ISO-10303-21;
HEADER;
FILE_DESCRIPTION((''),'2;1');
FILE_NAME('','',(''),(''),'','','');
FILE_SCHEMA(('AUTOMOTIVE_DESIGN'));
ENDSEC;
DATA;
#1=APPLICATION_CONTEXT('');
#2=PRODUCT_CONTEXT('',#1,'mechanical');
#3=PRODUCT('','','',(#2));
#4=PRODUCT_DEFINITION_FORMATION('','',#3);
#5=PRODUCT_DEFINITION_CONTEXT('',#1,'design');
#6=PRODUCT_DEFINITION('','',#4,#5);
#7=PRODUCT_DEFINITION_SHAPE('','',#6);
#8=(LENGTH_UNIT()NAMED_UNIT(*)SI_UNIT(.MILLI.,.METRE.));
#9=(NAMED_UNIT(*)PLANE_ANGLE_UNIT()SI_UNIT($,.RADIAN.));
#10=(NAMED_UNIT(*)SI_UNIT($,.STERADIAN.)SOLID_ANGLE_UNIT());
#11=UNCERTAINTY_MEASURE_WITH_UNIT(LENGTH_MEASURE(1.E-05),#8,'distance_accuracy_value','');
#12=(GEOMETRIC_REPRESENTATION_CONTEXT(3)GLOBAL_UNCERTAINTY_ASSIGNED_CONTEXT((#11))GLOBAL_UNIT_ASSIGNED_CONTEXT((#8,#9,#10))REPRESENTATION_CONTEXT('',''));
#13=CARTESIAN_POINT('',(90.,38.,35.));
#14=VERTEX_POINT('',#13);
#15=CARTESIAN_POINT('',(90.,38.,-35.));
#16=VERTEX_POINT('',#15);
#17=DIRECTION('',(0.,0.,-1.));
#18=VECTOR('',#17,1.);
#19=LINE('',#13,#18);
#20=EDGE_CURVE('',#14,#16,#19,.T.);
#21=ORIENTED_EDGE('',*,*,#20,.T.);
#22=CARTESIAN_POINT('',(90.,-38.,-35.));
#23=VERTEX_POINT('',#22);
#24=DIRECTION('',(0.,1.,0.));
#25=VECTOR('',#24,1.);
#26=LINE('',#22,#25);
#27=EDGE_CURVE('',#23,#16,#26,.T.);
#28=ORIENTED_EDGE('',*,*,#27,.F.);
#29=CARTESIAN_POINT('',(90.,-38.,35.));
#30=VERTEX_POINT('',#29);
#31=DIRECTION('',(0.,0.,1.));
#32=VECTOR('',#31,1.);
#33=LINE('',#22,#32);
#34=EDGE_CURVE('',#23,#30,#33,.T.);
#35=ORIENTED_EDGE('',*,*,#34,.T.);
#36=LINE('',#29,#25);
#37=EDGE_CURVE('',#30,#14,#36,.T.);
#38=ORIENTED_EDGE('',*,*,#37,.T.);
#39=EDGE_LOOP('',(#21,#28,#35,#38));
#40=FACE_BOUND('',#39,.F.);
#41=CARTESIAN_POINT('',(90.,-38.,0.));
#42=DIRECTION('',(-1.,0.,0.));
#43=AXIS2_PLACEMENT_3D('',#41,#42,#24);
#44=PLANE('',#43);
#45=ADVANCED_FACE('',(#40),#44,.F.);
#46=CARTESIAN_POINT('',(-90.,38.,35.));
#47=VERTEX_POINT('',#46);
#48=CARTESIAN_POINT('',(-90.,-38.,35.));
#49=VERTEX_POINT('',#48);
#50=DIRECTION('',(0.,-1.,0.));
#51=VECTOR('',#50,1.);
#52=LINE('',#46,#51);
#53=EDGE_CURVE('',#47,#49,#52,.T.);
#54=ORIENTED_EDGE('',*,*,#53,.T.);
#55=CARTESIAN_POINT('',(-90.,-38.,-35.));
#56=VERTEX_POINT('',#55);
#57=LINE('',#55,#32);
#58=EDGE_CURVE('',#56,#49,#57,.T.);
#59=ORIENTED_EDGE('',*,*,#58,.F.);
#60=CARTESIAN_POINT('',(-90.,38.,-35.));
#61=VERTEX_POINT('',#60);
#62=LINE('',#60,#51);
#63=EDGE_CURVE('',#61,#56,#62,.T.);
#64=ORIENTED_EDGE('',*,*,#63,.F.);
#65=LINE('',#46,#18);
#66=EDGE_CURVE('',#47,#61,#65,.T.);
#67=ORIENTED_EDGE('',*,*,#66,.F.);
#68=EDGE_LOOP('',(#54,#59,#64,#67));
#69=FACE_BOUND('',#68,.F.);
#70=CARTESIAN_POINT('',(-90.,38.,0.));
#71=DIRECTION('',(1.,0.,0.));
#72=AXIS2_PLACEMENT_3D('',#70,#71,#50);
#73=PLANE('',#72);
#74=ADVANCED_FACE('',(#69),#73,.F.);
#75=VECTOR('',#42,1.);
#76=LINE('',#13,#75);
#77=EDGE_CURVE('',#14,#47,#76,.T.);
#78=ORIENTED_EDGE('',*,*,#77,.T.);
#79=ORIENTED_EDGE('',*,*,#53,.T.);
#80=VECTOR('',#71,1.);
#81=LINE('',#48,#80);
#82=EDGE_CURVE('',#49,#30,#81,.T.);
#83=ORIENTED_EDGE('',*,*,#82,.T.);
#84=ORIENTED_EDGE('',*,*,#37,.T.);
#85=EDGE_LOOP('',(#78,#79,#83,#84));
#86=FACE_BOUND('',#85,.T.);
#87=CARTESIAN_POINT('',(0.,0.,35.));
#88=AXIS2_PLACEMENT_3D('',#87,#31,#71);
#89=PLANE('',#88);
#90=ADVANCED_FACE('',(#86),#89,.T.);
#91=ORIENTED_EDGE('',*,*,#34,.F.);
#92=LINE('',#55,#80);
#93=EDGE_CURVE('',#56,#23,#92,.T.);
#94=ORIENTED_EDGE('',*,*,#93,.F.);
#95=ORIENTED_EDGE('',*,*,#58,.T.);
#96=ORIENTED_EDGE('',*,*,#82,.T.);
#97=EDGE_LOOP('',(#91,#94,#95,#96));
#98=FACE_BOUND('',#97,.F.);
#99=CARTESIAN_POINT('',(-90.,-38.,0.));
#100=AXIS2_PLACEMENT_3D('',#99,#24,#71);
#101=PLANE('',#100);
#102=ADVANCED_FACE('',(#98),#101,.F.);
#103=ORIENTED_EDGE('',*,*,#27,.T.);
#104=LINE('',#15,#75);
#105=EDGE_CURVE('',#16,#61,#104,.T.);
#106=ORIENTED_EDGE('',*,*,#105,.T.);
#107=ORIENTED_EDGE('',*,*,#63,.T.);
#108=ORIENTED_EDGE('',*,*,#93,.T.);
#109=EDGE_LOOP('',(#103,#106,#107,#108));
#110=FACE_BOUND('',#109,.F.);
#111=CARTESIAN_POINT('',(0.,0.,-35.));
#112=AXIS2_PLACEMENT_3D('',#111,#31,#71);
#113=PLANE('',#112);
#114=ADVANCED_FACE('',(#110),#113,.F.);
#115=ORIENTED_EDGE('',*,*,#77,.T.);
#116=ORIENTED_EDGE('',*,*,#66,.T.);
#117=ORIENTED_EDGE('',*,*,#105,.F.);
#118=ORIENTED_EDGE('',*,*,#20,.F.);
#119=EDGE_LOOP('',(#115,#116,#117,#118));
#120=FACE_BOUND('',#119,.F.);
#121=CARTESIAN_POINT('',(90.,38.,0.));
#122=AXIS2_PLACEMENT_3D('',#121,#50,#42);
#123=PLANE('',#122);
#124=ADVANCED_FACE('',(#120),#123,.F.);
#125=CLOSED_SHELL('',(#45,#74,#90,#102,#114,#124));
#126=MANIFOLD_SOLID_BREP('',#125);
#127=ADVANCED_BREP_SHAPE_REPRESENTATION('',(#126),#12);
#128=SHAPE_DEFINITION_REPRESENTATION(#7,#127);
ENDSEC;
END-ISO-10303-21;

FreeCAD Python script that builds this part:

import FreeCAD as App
import Part
import Sketcher
from FreeCAD import Vector

doc = App.newDocument("Part")
body = doc.addObject("PartDesign::Body", "Body")

# Sketch on XY plane
sketch1 = body.newObject("Sketcher::SketchObject", "Sketch")
sketch1.AttachmentSupport = (doc.getObject("XY_Plane"), [""])
sketch1.MapMode = "FlatFace"
sketch1.addGeometry([
    Part.LineSegment(Vector(-90, 38, 0), Vector(-90, -38, 0)),
    Part.LineSegment(Vector(-90, -38, 0), Vector(90, -38, 0)),
    Part.LineSegment(Vector(90, -38, 0), Vector(90, 38, 0)),
    Part.LineSegment(Vector(90, 38, 0), Vector(-90, 38, 0)),
], False)
sketch1.addConstraint([
    Sketcher.Constraint("Coincident", 0, 2, 1, 1),
    Sketcher.Constraint("Coincident", 1, 2, 2, 1),
    Sketcher.Constraint("Coincident", 2, 2, 3, 1),
    Sketcher.Constraint("Coincident", 3, 2, 0, 1),
    Sketcher.Constraint("Vertical", 0),
    Sketcher.Constraint("Horizontal", 1),
    Sketcher.Constraint("Vertical", 2),
    Sketcher.Constraint("Horizontal", 3),
    Sketcher.Constraint("Symmetric", 0, 2, 2, 2, -1, 1),
    Sketcher.Constraint("DistanceX", 1, 1, 1, 2, 180.0),
    Sketcher.Constraint("DistanceY", 0, 2, 0, 1, 76.0),
])
pad1 = body.newObject("PartDesign::Pad", "Pad")
pad1.Profile = sketch1
pad1.Length = 70
pad1.Midplane = True

doc.recompute()
